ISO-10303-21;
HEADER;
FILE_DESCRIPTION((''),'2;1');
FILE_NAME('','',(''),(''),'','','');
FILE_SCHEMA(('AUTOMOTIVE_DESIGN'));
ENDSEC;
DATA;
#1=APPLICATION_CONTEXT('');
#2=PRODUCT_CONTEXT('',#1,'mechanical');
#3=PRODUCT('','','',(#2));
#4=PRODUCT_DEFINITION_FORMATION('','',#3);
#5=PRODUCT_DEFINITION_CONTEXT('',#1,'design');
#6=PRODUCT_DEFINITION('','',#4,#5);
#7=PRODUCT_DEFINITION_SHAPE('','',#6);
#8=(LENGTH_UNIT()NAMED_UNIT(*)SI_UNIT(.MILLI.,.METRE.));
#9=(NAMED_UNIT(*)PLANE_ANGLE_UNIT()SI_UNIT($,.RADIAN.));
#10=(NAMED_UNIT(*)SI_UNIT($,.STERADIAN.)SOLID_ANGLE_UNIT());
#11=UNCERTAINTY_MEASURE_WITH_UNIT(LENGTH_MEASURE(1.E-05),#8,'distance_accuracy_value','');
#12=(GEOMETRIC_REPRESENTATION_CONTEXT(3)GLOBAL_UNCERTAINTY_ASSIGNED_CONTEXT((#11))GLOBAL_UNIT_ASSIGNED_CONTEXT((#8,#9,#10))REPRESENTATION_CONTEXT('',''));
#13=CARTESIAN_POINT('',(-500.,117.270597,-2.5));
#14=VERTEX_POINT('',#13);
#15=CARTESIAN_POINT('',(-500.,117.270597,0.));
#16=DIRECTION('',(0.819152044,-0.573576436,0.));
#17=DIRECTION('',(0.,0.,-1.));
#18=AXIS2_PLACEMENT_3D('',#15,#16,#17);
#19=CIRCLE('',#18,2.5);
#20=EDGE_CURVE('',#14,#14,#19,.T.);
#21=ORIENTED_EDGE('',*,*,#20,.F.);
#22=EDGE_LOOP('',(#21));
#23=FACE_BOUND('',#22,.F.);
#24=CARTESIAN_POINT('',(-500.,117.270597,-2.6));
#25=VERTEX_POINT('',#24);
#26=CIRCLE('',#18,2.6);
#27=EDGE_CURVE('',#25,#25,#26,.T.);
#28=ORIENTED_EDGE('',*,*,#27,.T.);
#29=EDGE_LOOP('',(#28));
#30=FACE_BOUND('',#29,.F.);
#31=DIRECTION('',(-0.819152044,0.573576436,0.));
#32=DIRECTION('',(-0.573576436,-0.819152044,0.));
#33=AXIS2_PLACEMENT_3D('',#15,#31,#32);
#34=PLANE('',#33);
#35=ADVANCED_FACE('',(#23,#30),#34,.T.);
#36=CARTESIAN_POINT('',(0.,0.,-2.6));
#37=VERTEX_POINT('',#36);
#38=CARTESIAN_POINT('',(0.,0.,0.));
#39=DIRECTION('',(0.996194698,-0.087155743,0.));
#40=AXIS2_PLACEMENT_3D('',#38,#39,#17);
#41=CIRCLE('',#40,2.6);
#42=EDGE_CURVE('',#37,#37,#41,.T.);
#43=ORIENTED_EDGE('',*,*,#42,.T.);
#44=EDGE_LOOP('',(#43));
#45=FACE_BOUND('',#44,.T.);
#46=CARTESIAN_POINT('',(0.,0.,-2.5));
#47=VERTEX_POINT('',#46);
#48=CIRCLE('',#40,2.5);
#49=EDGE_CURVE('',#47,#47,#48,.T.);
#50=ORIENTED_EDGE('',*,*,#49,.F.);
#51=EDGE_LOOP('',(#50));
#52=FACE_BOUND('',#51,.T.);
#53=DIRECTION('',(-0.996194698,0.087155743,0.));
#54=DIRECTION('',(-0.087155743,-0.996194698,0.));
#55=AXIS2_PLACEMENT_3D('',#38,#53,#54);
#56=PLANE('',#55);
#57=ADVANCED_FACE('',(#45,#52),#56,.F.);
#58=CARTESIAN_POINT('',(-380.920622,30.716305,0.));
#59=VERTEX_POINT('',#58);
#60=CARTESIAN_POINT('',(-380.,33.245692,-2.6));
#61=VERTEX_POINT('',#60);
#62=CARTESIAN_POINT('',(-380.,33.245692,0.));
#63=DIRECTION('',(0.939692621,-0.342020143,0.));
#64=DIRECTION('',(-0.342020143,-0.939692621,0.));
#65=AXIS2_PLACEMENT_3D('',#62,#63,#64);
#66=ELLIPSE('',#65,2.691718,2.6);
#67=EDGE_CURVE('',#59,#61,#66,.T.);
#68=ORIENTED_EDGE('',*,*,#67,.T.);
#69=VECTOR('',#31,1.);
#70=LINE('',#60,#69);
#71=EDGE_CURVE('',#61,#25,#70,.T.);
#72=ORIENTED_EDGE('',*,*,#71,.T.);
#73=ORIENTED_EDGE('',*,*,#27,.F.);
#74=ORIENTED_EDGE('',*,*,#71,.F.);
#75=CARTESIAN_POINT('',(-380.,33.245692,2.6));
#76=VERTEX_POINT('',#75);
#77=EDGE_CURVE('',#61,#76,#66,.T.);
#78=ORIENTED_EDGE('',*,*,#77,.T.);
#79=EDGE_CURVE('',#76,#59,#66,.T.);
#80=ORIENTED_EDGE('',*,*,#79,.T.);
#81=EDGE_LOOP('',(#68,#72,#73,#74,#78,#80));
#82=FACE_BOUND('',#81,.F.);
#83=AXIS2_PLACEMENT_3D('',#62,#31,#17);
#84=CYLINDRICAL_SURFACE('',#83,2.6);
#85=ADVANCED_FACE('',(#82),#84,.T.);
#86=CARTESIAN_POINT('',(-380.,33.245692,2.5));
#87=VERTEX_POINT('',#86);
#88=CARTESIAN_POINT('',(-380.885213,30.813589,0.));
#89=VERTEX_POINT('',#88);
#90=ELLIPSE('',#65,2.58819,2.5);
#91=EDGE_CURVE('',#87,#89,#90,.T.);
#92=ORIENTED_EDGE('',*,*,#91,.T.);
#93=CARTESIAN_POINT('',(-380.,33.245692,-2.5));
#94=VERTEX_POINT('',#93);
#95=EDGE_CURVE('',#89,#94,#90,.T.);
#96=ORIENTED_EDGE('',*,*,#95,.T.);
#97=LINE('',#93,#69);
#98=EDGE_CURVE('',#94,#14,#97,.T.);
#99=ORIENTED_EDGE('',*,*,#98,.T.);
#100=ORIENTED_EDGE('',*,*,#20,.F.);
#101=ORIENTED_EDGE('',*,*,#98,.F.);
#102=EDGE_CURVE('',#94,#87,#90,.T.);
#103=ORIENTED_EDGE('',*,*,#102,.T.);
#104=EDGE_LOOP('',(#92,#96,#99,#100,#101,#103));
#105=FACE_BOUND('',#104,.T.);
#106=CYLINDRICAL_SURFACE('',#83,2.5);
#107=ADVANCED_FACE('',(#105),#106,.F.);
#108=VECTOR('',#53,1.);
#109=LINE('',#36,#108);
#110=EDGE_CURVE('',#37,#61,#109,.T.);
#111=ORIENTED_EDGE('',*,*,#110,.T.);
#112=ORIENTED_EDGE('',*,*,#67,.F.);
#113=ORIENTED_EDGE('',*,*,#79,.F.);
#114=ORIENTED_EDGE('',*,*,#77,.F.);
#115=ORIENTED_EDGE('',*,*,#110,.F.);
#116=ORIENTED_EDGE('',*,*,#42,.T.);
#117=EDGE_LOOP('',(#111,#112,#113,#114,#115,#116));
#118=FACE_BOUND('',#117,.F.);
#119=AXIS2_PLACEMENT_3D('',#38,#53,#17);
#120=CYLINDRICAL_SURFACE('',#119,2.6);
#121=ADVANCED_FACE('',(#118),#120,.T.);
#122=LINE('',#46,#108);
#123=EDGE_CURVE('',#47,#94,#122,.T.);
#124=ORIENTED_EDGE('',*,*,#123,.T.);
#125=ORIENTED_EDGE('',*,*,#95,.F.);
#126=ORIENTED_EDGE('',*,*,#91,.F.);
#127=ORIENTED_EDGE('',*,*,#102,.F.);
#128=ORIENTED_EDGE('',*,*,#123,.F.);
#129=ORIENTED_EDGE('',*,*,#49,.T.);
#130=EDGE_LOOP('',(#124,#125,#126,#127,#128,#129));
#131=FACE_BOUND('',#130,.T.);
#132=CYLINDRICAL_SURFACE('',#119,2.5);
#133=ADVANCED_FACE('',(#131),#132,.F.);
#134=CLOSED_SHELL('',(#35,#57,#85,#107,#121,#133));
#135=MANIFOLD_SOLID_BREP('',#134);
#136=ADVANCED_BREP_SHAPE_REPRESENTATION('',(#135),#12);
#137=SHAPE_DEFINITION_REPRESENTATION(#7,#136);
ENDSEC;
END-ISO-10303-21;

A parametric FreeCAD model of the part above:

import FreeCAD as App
import Part
import Sketcher
Q = App.Units.Quantity

doc = App.newDocument("Part")
body = doc.addObject("PartDesign::Body", "Body")

# Sketch on an angled plane
sketch1 = doc.addObject("Sketcher::SketchObject", "Sketch")
body.addObject(sketch1)
sketch1.Placement = App.Placement(App.Vector(0, 0, 0), App.Rotation(App.Vector(0, 0, -1), App.Vector(-0.087155743, 0.996194698, 0), App.Vector(0.996194698, 0.087155743, 0), "ZXY"))
sketch1.addGeometry([
    Part.Circle(App.Vector(0, 0, 0), App.Vector(0, 0, 1), 2.6),
    Part.Circle(App.Vector(0, 0, 0), App.Vector(0, 0, 1), 2.5),
], False)
sketch1.addConstraint([
    Sketcher.Constraint("Coincident", 0, 3, -1, 1),
    Sketcher.Constraint("Coincident", 1, 3, -1, 1),
    Sketcher.Constraint("Diameter", 1, Q("5 mm")),
    Sketcher.Constraint("Diameter", 0, Q("5.2 mm")),
])

# Sketch on XY plane
sketch2 = doc.addObject("Sketcher::SketchObject", "Sketch001")
body.addObject(sketch2)
sketch2.AttachmentSupport = (doc.XY_Plane, [""])
sketch2.MapMode = "FlatFace"
sketch2.addGeometry([
    Part.LineSegment(App.Vector(0, 0, 0), App.Vector(380, 33, 0)),
    Part.LineSegment(App.Vector(380, 33, 0), App.Vector(500, 117, 0)),
], False)
sketch2.addConstraint([
    Sketcher.Constraint("Coincident", 0, 2, 1, 1),
    Sketcher.Constraint("Coincident", 0, 1, -1, 1),
    Sketcher.Constraint("Angle", 0, Q("5 deg")),
    Sketcher.Constraint("Angle", 1, Q("35 deg")),
    Sketcher.Constraint("DistanceX", -1, 1, 0, 2, Q("380 mm")),
    Sketcher.Constraint("DistanceX", -1, 1, 1, 2, Q("500 mm")),
])
doc.recompute()

additivepipe = doc.addObject("PartDesign::AdditivePipe", "AdditivePipe")
body.addObject(additivepipe)
additivepipe.Profile = sketch1
additivepipe.Spine = (sketch2, ["Edge1", "Edge2"])
additivepipe.Transition = "Right corner"
body2 = doc.addObject("PartDesign::Body", "Body001")
doc.recompute()

mirroring = doc.addObject("Part::Mirroring", "Mirroring")
mirroring.Source = body
mirroring.Base = App.Vector(0, 0, 0)
mirroring.Normal = App.Vector(1, 0, 0)
body2.BaseFeature = mirroring
doc.recompute()
body.Visibility = False
mirroring.Visibility = False

doc.recompute()
